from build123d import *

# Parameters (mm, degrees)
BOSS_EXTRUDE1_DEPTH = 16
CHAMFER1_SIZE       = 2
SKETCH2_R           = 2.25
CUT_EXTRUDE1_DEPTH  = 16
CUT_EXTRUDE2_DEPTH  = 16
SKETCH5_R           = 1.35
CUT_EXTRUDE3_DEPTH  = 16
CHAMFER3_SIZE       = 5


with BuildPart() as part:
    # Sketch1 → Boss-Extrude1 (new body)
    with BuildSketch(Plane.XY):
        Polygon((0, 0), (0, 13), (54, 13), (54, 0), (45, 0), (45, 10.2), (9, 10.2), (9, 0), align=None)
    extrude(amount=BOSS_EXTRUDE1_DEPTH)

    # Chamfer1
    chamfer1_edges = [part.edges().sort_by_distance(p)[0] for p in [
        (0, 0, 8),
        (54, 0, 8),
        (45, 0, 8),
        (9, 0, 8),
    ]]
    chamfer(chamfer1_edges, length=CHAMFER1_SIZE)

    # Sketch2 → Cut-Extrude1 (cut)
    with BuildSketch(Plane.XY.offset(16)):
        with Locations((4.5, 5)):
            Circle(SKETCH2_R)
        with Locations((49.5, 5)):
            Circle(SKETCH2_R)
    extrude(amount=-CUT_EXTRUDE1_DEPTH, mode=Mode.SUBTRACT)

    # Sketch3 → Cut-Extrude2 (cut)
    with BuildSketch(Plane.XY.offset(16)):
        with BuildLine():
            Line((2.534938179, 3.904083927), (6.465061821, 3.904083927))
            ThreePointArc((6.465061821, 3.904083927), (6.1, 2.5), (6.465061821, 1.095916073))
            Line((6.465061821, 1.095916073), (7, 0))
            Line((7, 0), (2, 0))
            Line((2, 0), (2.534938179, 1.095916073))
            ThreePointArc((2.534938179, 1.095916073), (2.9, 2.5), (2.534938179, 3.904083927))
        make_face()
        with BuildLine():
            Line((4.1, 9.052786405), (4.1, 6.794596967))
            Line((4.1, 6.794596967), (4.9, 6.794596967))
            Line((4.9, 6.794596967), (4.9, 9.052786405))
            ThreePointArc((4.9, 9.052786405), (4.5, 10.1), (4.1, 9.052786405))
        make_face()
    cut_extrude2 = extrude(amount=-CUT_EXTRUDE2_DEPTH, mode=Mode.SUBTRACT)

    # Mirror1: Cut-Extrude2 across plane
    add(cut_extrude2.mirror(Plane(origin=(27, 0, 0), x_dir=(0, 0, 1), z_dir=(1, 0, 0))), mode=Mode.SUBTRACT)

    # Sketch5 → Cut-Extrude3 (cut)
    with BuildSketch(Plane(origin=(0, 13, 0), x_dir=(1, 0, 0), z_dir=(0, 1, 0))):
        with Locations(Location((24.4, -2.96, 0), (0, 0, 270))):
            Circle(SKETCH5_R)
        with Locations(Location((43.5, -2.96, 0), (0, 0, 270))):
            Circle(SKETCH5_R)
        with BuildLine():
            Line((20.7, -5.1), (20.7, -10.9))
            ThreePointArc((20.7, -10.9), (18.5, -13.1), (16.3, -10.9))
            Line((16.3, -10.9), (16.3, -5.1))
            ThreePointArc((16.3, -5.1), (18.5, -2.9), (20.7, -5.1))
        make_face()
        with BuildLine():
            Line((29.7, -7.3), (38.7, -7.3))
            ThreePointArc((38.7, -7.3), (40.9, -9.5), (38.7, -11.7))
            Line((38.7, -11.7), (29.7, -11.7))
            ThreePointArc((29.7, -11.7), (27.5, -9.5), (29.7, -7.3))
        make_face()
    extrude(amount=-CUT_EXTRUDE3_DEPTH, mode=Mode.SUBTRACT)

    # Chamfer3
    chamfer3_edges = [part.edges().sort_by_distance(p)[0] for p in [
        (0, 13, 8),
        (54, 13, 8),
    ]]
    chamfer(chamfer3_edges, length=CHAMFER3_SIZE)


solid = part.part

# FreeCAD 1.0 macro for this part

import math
import FreeCAD as App
import Part
import Sketcher

V = App.Vector
Q = App.Units.Quantity


def edges_at(feature, points):
    """Names of the edges that pass closest to the given points."""
    edges = feature.Shape.Edges
    near = lambda p: min(range(len(edges)), key=lambda i: edges[i].distToShape(Part.Vertex(*p))[0])
    return sorted({f"Edge{near(p) + 1}" for p in points})


def add_polygon(sketch, points):
    """Adds a closed chain of lines whose ends are joined by coincident constraints."""
    first, n = sketch.GeometryCount, len(points)
    for a, b in zip(points, points[1:] + points[:1]):
        sketch.addGeometry(Part.LineSegment(App.Vector(*a, 0), App.Vector(*b, 0)), False)
    for i in range(n):
        sketch.addConstraint(Sketcher.Constraint("Coincident", first + i, 2, first + (i + 1) % n, 1))

doc = App.newDocument("Part")
body = doc.addObject("PartDesign::Body", "Body")

sketch1 = body.newObject("Sketcher::SketchObject", "Sketch")
sketch1.AttachmentSupport = (doc.getObject("XY_Plane"), [""])
sketch1.MapMode = "FlatFace"
add_polygon(sketch1, [(0, 13), (0, 0), (9, 0), (9, 10), (45, 10), (45, 0), (54, 0), (54, 13)])
sketch1.addConstraint([
    Sketcher.Constraint("Vertical", 0),
    Sketcher.Constraint("Horizontal", 1),
    Sketcher.Constraint("Vertical", 2),
    Sketcher.Constraint("Horizontal", 3),
    Sketcher.Constraint("Vertical", 4),
    Sketcher.Constraint("Horizontal", 5),
    Sketcher.Constraint("Vertical", 6),
    Sketcher.Constraint("Horizontal", 7),
    Sketcher.Constraint("Coincident", 0, 2, -1, 1),
    Sketcher.Constraint("PointOnObject", 4, 2, -1),
    Sketcher.Constraint("Equal", 1, 5),
    Sketcher.Constraint("DistanceX", 1, 1, 1, 2, Q("9 mm")),
    Sketcher.Constraint("DistanceX", 3, 1, 3, 2, Q("36 mm")),
    Sketcher.Constraint("DistanceY", 0, 2, 0, 1, Q("13 mm")),
    Sketcher.Constraint("DistanceY", 2, 1, 2, 2, Q("10.2 mm")),
])
pad1 = body.newObject("PartDesign::Pad", "Pad")
pad1.Profile = sketch1
pad1.Length = 16
doc.recompute()

chamfer = body.newObject("PartDesign::Chamfer", "Chamfer")
chamfer.Base = (pad1, edges_at(pad1, [
    (0, 0, 8),
    (54, 0, 8),
    (45, 0, 8),
    (9, 0, 8),
]))
chamfer.Size = 2

sketch2 = body.newObject("Sketcher::SketchObject", "Sketch001")
sketch2.AttachmentSupport = (doc.getObject("XY_Plane"), [""])
sketch2.MapMode = "FlatFace"
sketch2.AttachmentOffset = App.Placement(V(0, 0, 16), App.Rotation())
sketch2.addGeometry([
    Part.Circle(V(4.5, 5, 0), V(0, 0, 1), 2.2),
    Part.Circle(V(49.5, 5, 0), V(0, 0, 1), 2.2),
], False)
sketch2.addConstraint([
    Sketcher.Constraint("Equal", 0, 1),
    Sketcher.Constraint("Horizontal", 0, 3, 1, 3),
    Sketcher.Constraint("Diameter", 0, Q("4.5 mm")),
    Sketcher.Constraint("DistanceY", -1, 1, 0, 3, Q("5 mm")),
    Sketcher.Constraint("DistanceX", 0, 3, 1, 3, Q("45 mm")),
    Sketcher.Constraint("DistanceX", -1, 1, 0, 3, Q("4.5 mm")),
])
pocket1 = body.newObject("PartDesign::Pocket", "Pocket")
pocket1.Profile = sketch2
pocket1.Length = 16

sketch3 = body.newObject("Sketcher::SketchObject", "Sketch002")
sketch3.AttachmentSupport = (doc.getObject("XY_Plane"), [""])
sketch3.MapMode = "FlatFace"
sketch3.AttachmentOffset = App.Placement(V(0, 0, 16), App.Rotation())
sketch3.addGeometry([
    Part.LineSegment(V(6.5, 3.9, 0), V(2.5, 3.9, 0)),
    Part.ArcOfCircle(Part.Circle(V(0, 2.5, 0), V(0, 0, 1), 2.9), math.radians(-29), math.radians(29)),
    Part.LineSegment(V(2.5, 1.1, 0), V(2, 0, 0)),
    Part.LineSegment(V(2, 0, 0), V(7, 0, 0)),
    Part.LineSegment(V(7, 0, 0), V(6.5, 1.1, 0)),
    Part.ArcOfCircle(Part.Circle(V(9, 2.5, 0), V(0, 0, 1), 2.9), math.radians(151), math.radians(209)),
    Part.LineSegment(V(4.1, 9.1, 0), V(4.1, 6.8, 0)),
    Part.LineSegment(V(4.1, 6.8, 0), V(4.9, 6.8, 0)),
    Part.LineSegment(V(4.9, 6.8, 0), V(4.9, 9.1, 0)),
    Part.ArcOfCircle(Part.Circle(V(4.5, 9.5, 0), V(0, 0, 1), 0.6), math.radians(-48), math.radians(228)),
], False)
sketch3.addConstraint([
    Sketcher.Constraint("Coincident", 0, 2, 1, 2),
    Sketcher.Constraint("Coincident", 1, 1, 2, 1),
    Sketcher.Constraint("Coincident", 2, 2, 3, 1),
    Sketcher.Constraint("Coincident", 3, 2, 4, 1),
    Sketcher.Constraint("Coincident", 4, 2, 5, 2),
    Sketcher.Constraint("Coincident", 5, 1, 0, 1),
    Sketcher.Constraint("Coincident", 6, 2, 7, 1),
    Sketcher.Constraint("Coincident", 7, 2, 8, 1),
    Sketcher.Constraint("Coincident", 8, 2, 9, 1),
    Sketcher.Constraint("Coincident", 9, 2, 6, 1),
    Sketcher.Constraint("Horizontal", 0),
    Sketcher.Constraint("Horizontal", 3),
    Sketcher.Constraint("Vertical", 6),
    Sketcher.Constraint("Horizontal", 7),
    Sketcher.Constraint("Vertical", 8),
    Sketcher.Constraint("Equal", 1, 5),
    Sketcher.Constraint("PointOnObject", 2, 2, -1),
    Sketcher.Constraint("Horizontal", 1, 3, 5, 3),
    Sketcher.Constraint("Horizontal", 1, 1, 4, 2),
    Sketcher.Constraint("Horizontal", 8, 2, 9, 2),
    Sketcher.Constraint("Vertical", 0, 2, 1, 1),
    Sketcher.Constraint("Equal", 2, 4),
    Sketcher.Constraint("Radius", 9, Q("0.6 mm")),
    Sketcher.Constraint("DistanceX", 3, 1, 3, 2, Q("5 mm")),
    Sketcher.Constraint("DistanceX", 7, 1, 7, 2, Q("0.8 mm")),
    Sketcher.Constraint("DistanceX", -1, 1, 2, 2, Q("2 mm")),
    Sketcher.Constraint("DistanceY", 1, 3, 9, 3, Q("7 mm")),
    Sketcher.Constraint("DistanceY", -1, 1, 1, 3, Q("2.5 mm")),
    Sketcher.Constraint("DistanceX", -1, 1, 9, 3, Q("4.5 mm")),
    Sketcher.Constraint("Radius", 1, Q("2.882692 mm")),
    Sketcher.Constraint("DistanceY", 6, 2, 6, 1, Q("2.258189 mm")),
    Sketcher.Constraint("DistanceX", 0, 2, 0, 1, Q("3.930124 mm")),
    Sketcher.Constraint("DistanceX", 1, 3, 0, 2, Q("2.51763 mm")),
])
pocket2 = body.newObject("PartDesign::Pocket", "Pocket001")
pocket2.Profile = sketch3
pocket2.Length = 16
doc.recompute()

datumplane = body.newObject("PartDesign::Plane", "DatumPlane")
datumplane.AttachmentSupport = (doc.getObject("YZ_Plane"), [""])
datumplane.MapMode = "FlatFace"
datumplane.AttachmentOffset = App.Placement(V(0, 0, 27), App.Rotation())
mirrored = body.newObject("PartDesign::Mirrored", "Mirrored")
mirrored.Originals = [pocket2]
mirrored.MirrorPlane = (datumplane, [""])
body.Tip = mirrored

sketch4 = body.newObject("Sketcher::SketchObject", "Sketch003")
sketch4.AttachmentSupport = (doc.getObject("XZ_Plane"), [""])
sketch4.MapMode = "FlatFace"
sketch4.AttachmentOffset = App.Placement(V(0, 0, -13), App.Rotation())
sketch4.addGeometry([
    Part.Circle(V(24.4, 3, 0), V(0, 0, 1), 1.4),
    Part.Circle(V(43.5, 3, 0), V(0, 0, 1), 1.4),
    Part.LineSegment(V(20.7, 10.9, 0), V(20.7, 5.1, 0)),
    Part.ArcOfCircle(Part.Circle(V(18.5, 5.1, 0), V(0, 0, 1), 2.2), math.radians(180), math.radians(360)),
    Part.LineSegment(V(16.3, 5.1, 0), V(16.3, 10.9, 0)),
    Part.ArcOfCircle(Part.Circle(V(18.5, 10.9, 0), V(0, 0, 1), 2.2), math.radians(0), math.radians(180)),
    Part.LineSegment(V(38.7, 7.3, 0), V(29.7, 7.3, 0)),
    Part.ArcOfCircle(Part.Circle(V(29.7, 9.5, 0), V(0, 0, 1), 2.2), math.radians(90), math.radians(270)),
    Part.LineSegment(V(29.7, 11.7, 0), V(38.7, 11.7, 0)),
    Part.ArcOfCircle(Part.Circle(V(38.7, 9.5, 0), V(0, 0, 1), 2.2), math.radians(-90), math.radians(90)),
], False)
sketch4.addConstraint([
    Sketcher.Constraint("Tangent", 2, 2, 3, 2),
    Sketcher.Constraint("Tangent", 3, 1, 4, 1),
    Sketcher.Constraint("Tangent", 4, 2, 5, 2),
    Sketcher.Constraint("Tangent", 5, 1, 2, 1),
    Sketcher.Constraint("Tangent", 6, 2, 7, 2),
    Sketcher.Constraint("Tangent", 7, 1, 8, 1),
    Sketcher.Constraint("Tangent", 8, 2, 9, 2),
    Sketcher.Constraint("Tangent", 9, 1, 6, 1),
    Sketcher.Constraint("Vertical", 2),
    Sketcher.Constraint("Vertical", 4),
    Sketcher.Constraint("Horizontal", 6),
    Sketcher.Constraint("Horizontal", 8),
    Sketcher.Constraint("Equal", 0, 1),
    Sketcher.Constraint("Equal", 5, 7),
    Sketcher.Constraint("Horizontal", 0, 3, 1, 3),
    Sketcher.Constraint("Diameter", 0, Q("2.7 mm")),
    Sketcher.Constraint("Radius", 3, Q("2.2 mm")),
    Sketcher.Constraint("DistanceX", 6, 2, 6, 1, Q("9 mm")),
    Sketcher.Constraint("DistanceY", 2, 2, 2, 1, Q("5.8 mm")),
    Sketcher.Constraint("DistanceX", 3, 3, 1, 3, Q("25 mm")),
    Sketcher.Constraint("DistanceX", 2, 2, 7, 3, Q("9 mm")),
    Sketcher.Constraint("DistanceX", -1, 1, 0, 3, Q("24.4 mm")),
    Sketcher.Constraint("DistanceX", -1, 1, 1, 3, Q("43.5 mm")),
    Sketcher.Constraint("DistanceY", -1, 1, 3, 3, Q("5.1 mm")),
    Sketcher.Constraint("DistanceY", -1, 1, 7, 3, Q("9.5 mm")),
    Sketcher.Constraint("DistanceY", -1, 1, 0, 3, Q("2.96 mm")),
])
pocket3 = body.newObject("PartDesign::Pocket", "Pocket002")
pocket3.Profile = sketch4
pocket3.Length = 16
pocket3.Reversed = True
doc.recompute()

chamfer2 = body.newObject("PartDesign::Chamfer", "Chamfer001")
chamfer2.Base = (pocket3, edges_at(pocket3, [(0, 13, 8), (54, 13, 8)]))
chamfer2.Size = 5

doc.recompute()
